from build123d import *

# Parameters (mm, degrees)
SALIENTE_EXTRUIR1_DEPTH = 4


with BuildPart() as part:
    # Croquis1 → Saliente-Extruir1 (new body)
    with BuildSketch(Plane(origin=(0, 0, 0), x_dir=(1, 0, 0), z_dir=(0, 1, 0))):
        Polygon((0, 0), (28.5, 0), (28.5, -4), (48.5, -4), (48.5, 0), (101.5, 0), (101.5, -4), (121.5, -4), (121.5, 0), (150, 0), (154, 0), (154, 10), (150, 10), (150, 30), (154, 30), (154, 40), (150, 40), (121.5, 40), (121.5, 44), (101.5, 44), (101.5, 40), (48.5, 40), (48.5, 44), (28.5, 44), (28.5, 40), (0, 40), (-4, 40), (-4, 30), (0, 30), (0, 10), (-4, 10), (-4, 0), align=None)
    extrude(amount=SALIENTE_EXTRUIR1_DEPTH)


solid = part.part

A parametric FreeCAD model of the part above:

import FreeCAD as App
import Part
import Sketcher
from FreeCAD import Vector

doc = App.newDocument("Part")
body = doc.addObject("PartDesign::Body", "Body")

# Sketch on XZ plane
sketch1 = doc.addObject("Sketcher::SketchObject", "Sketch")
body.addObject(sketch1)
sketch1.AttachmentSupport = (doc.XZ_Plane, [""])
sketch1.MapMode = "FlatFace"
sketch1.addGeometry([
    Part.LineSegment(Vector(28.5, 0, 0), Vector(28.5, 4, 0)),  # 0
    Part.LineSegment(Vector(28.5, 4, 0), Vector(48.5, 4, 0)),  # 1
    Part.LineSegment(Vector(48.5, 4, 0), Vector(48.5, 0, 0)),  # 2
    Part.LineSegment(Vector(48.5, 0, 0), Vector(101.5, 0, 0)),  # 3
    Part.LineSegment(Vector(101.5, 0, 0), Vector(101.5, 4, 0)),  # 4
    Part.LineSegment(Vector(101.5, 4, 0), Vector(121.5, 4, 0)),  # 5
    Part.LineSegment(Vector(121.5, 4, 0), Vector(121.5, 0, 0)),  # 6
    Part.LineSegment(Vector(121.5, 0, 0), Vector(154, 0, 0)),  # 7
    Part.LineSegment(Vector(154, 0, 0), Vector(154, -10, 0)),  # 8
    Part.LineSegment(Vector(154, -10, 0), Vector(150, -10, 0)),  # 9
    Part.LineSegment(Vector(150, -10, 0), Vector(150, -30, 0)),  # 10
    Part.LineSegment(Vector(150, -30, 0), Vector(154, -30, 0)),  # 11
    Part.LineSegment(Vector(154, -30, 0), Vector(154, -40, 0)),  # 12
    Part.LineSegment(Vector(154, -40, 0), Vector(121.5, -40, 0)),  # 13
    Part.LineSegment(Vector(121.5, -40, 0), Vector(121.5, -44, 0)),  # 14
    Part.LineSegment(Vector(121.5, -44, 0), Vector(101.5, -44, 0)),  # 15
    Part.LineSegment(Vector(101.5, -44, 0), Vector(101.5, -40, 0)),  # 16
    Part.LineSegment(Vector(101.5, -40, 0), Vector(48.5, -40, 0)),  # 17
    Part.LineSegment(Vector(48.5, -40, 0), Vector(48.5, -44, 0)),  # 18
    Part.LineSegment(Vector(48.5, -44, 0), Vector(28.5, -44, 0)),  # 19
    Part.LineSegment(Vector(28.5, -44, 0), Vector(28.5, -40, 0)),  # 20
    Part.LineSegment(Vector(28.5, -40, 0), Vector(-4, -40, 0)),  # 21
    Part.LineSegment(Vector(-4, -40, 0), Vector(-4, -30, 0)),  # 22
    Part.LineSegment(Vector(-4, -30, 0), Vector(0, -30, 0)),  # 23
    Part.LineSegment(Vector(0, -30, 0), Vector(0, -10, 0)),  # 24
    Part.LineSegment(Vector(0, -10, 0), Vector(-4, -10, 0)),  # 25
    Part.LineSegment(Vector(-4, -10, 0), Vector(-4, 0, 0)),  # 26
    Part.LineSegment(Vector(-4, 0, 0), Vector(28.5, 0, 0)),  # 27
], False)
sketch1.addConstraint([
    Sketcher.Constraint("Coincident", 0, 2, 1, 1),
    Sketcher.Constraint("Coincident", 1, 2, 2, 1),
    Sketcher.Constraint("Coincident", 2, 2, 3, 1),
    Sketcher.Constraint("Coincident", 3, 2, 4, 1),
    Sketcher.Constraint("Coincident", 4, 2, 5, 1),
    Sketcher.Constraint("Coincident", 5, 2, 6, 1),
    Sketcher.Constraint("Coincident", 6, 2, 7, 1),
    Sketcher.Constraint("Coincident", 7, 2, 8, 1),
    Sketcher.Constraint("Coincident", 8, 2, 9, 1),
    Sketcher.Constraint("Coincident", 9, 2, 10, 1),
    Sketcher.Constraint("Coincident", 10, 2, 11, 1),
    Sketcher.Constraint("Coincident", 11, 2, 12, 1),
    Sketcher.Constraint("Coincident", 12, 2, 13, 1),
    Sketcher.Constraint("Coincident", 13, 2, 14, 1),
    Sketcher.Constraint("Coincident", 14, 2, 15, 1),
    Sketcher.Constraint("Coincident", 15, 2, 16, 1),
    Sketcher.Constraint("Coincident", 16, 2, 17, 1),
    Sketcher.Constraint("Coincident", 17, 2, 18, 1),
    Sketcher.Constraint("Coincident", 18, 2, 19, 1),
    Sketcher.Constraint("Coincident", 19, 2, 20, 1),
    Sketcher.Constraint("Coincident", 20, 2, 21, 1),
    Sketcher.Constraint("Coincident", 21, 2, 22, 1),
    Sketcher.Constraint("Coincident", 22, 2, 23, 1),
    Sketcher.Constraint("Coincident", 23, 2, 24, 1),
    Sketcher.Constraint("Coincident", 24, 2, 25, 1),
    Sketcher.Constraint("Coincident", 25, 2, 26, 1),
    Sketcher.Constraint("Coincident", 26, 2, 27, 1),
    Sketcher.Constraint("Coincident", 27, 2, 0, 1),
    Sketcher.Constraint("Vertical", 0),
    Sketcher.Constraint("Horizontal", 1),
    Sketcher.Constraint("Vertical", 2),
    Sketcher.Constraint("Horizontal", 3),
    Sketcher.Constraint("Vertical", 4),
    Sketcher.Constraint("Horizontal", 5),
    Sketcher.Constraint("Vertical", 6),
    Sketcher.Constraint("Horizontal", 7),
    Sketcher.Constraint("Vertical", 8),
    Sketcher.Constraint("Horizontal", 9),
    Sketcher.Constraint("Vertical", 10),
    Sketcher.Constraint("Horizontal", 11),
    Sketcher.Constraint("Vertical", 12),
    Sketcher.Constraint("Horizontal", 13),
    Sketcher.Constraint("Vertical", 14),
    Sketcher.Constraint("Horizontal", 15),
    Sketcher.Constraint("Vertical", 16),
    Sketcher.Constraint("Horizontal", 17),
    Sketcher.Constraint("Vertical", 18),
    Sketcher.Constraint("Horizontal", 19),
    Sketcher.Constraint("Vertical", 20),
    Sketcher.Constraint("Horizontal", 21),
    Sketcher.Constraint("Vertical", 22),
    Sketcher.Constraint("Horizontal", 23),
    Sketcher.Constraint("Vertical", 24),
    Sketcher.Constraint("Horizontal", 25),
    Sketcher.Constraint("Vertical", 26),
    Sketcher.Constraint("Horizontal", 27),
    Sketcher.Constraint("PointOnObject", 2, 2, -1),
    Sketcher.Constraint("PointOnObject", 6, 2, -1),
    Sketcher.Constraint("PointOnObject", 23, 2, -2),
    Sketcher.Constraint("PointOnObject", 26, 2, -1),
    Sketcher.Constraint("Horizontal", 1, 2, 4, 2),
    Sketcher.Constraint("Horizontal", 13, 2, 16, 2),
    Sketcher.Constraint("Horizontal", 15, 2, 18, 2),
    Sketcher.Constraint("Horizontal", 17, 2, 20, 2),
    Sketcher.Constraint("Horizontal", 11, 2, 22, 2),
    Sketcher.Constraint("Horizontal", 9, 2, 24, 2),
    Sketcher.Constraint("Vertical", 8, 2, 11, 2),
    Sketcher.Constraint("Vertical", 6, 2, 13, 2),
    Sketcher.Constraint("Vertical", 4, 2, 15, 2),
    Sketcher.Constraint("Vertical", 2, 2, 17, 2),
    Sketcher.Constraint("Vertical", 0, 2, 19, 2),
    Sketcher.Constraint("Vertical", 22, 2, 25, 2),
    Sketcher.Constraint("Equal", 1, 5),
    Sketcher.Constraint("Equal", 13, 21),
    Sketcher.Constraint("Equal", 11, 23),
    Sketcher.Constraint("Equal", 25, 0),
    Sketcher.Constraint("Equal", 19, 10),
    Sketcher.Constraint("Equal", 8, 12),
    Sketcher.Constraint("Equal", 6, 14),
    Sketcher.Constraint("DistanceX", 1, 1, 1, 2, 20.0),
    Sketcher.Constraint("DistanceX", 3, 1, 3, 2, 53.0),
    Sketcher.Constraint("DistanceX", 9, 2, 9, 1, 4.0),
    Sketcher.Constraint("DistanceY", 8, 2, 8, 1, 10.0),
    Sketcher.Constraint("DistanceX", 7, 1, 7, 2, 32.5),
])
pad1 = doc.addObject("PartDesign::Pad", "Pad")
body.addObject(pad1)
pad1.Profile = sketch1
pad1.Length = 4
pad1.Reversed = True

doc.recompute()
